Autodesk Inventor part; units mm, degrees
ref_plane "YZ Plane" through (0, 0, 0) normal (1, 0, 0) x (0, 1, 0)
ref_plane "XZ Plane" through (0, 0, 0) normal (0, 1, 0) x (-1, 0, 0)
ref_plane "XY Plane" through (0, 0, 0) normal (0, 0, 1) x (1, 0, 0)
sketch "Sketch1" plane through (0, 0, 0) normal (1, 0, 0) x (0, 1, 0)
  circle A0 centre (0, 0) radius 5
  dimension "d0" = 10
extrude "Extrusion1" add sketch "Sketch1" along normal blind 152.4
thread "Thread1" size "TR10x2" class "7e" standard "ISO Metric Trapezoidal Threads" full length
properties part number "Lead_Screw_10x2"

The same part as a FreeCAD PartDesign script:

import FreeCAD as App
import Part
import Sketcher
Q = App.Units.Quantity

doc = App.newDocument("Part")
body = doc.addObject("PartDesign::Body", "Body")

# Sketch on YZ plane
sketch1 = doc.addObject("Sketcher::SketchObject", "Sketch")
body.addObject(sketch1)
sketch1.AttachmentSupport = (doc.YZ_Plane, [""])
sketch1.MapMode = "FlatFace"
sketch1.addGeometry(Part.Circle(App.Vector(0, 0, 0), App.Vector(0, 0, 1), 5), False)
sketch1.addConstraint([
    Sketcher.Constraint("Coincident", 0, 3, -1, 1),
    Sketcher.Constraint("Diameter", 0, Q("0.3937 in")),
])
pad1 = doc.addObject("PartDesign::Pad", "Pad")
body.addObject(pad1)
pad1.Profile = sketch1
pad1.Length = Q("6 in")

doc.recompute()
